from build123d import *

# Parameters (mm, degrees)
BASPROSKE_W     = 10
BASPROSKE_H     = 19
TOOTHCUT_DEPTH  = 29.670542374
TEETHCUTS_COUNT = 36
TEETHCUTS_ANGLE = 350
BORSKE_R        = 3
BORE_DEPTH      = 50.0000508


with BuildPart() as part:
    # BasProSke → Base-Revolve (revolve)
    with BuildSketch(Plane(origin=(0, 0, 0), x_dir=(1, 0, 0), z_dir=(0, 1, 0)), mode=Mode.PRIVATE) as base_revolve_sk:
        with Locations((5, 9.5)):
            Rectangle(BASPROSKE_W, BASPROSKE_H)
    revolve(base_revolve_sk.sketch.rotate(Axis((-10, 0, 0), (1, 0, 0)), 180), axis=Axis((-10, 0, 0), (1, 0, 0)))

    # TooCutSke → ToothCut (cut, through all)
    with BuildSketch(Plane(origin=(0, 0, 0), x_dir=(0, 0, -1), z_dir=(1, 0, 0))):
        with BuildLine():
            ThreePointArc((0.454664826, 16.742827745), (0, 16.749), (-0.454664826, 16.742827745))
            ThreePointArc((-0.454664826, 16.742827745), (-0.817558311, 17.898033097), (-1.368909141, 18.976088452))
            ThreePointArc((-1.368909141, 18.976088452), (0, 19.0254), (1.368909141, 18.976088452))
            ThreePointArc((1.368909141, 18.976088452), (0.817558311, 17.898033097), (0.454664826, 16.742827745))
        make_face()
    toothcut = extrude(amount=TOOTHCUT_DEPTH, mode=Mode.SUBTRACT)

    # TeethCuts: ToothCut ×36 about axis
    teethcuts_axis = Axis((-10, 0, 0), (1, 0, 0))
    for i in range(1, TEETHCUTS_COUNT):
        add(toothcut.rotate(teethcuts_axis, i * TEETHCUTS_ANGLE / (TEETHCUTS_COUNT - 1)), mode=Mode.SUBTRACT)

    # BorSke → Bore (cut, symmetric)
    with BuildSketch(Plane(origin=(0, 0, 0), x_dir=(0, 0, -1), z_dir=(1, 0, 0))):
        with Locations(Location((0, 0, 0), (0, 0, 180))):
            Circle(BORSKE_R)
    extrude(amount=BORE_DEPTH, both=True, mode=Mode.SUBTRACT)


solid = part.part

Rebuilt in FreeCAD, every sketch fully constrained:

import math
import FreeCAD as App
import Part
import Sketcher

V = App.Vector
Q = App.Units.Quantity


def add_polygon(sketch, points):
    """Adds a closed chain of lines whose ends are joined by coincident constraints."""
    first, n = sketch.GeometryCount, len(points)
    for a, b in zip(points, points[1:] + points[:1]):
        sketch.addGeometry(Part.LineSegment(App.Vector(*a, 0), App.Vector(*b, 0)), False)
    for i in range(n):
        sketch.addConstraint(Sketcher.Constraint("Coincident", first + i, 2, first + (i + 1) % n, 1))

doc = App.newDocument("Part")
body = doc.addObject("PartDesign::Body", "Body")

# Sketch on XZ plane
sketch1 = doc.addObject("Sketcher::SketchObject", "Sketch")
body.addObject(sketch1)
sketch1.AttachmentSupport = (doc.XZ_Plane, [""])
sketch1.MapMode = "FlatFace"
add_polygon(sketch1, [(0, -19), (0, 0), (10, 0), (10, -19)])  # lines 0-3
sketch1.addConstraint([
    Sketcher.Constraint("Vertical", 0),
    Sketcher.Constraint("Horizontal", 1),
    Sketcher.Constraint("Vertical", 2),
    Sketcher.Constraint("Horizontal", 3),
    Sketcher.Constraint("Coincident", 0, 2, -1, 1),
    Sketcher.Constraint("DistanceX", 1, 1, 1, 2, Q("10 mm")),
    Sketcher.Constraint("DistanceY", 0, 1, 0, 2, Q("19 mm")),
])
revolution = doc.addObject("PartDesign::Revolution", "Revolution")
body.addObject(revolution)
revolution.Profile = sketch1
revolution.ReferenceAxis = (sketch1, ["H_Axis"])
revolution.Angle = 360

# Sketch on YZ plane
sketch2 = doc.addObject("Sketcher::SketchObject", "Sketch001")
body.addObject(sketch2)
sketch2.AttachmentSupport = (doc.YZ_Plane, [""])
sketch2.MapMode = "FlatFace"
sketch2.addGeometry([
    Part.ArcOfCircle(Part.Circle(V(0, 0, 0), V(0, 0, 1), 16.7), math.radians(-1.56), math.radians(1.56)),
    Part.ArcOfCircle(Part.Circle(V(15.2, -7.5, 0), V(0, 0, 1), 7.2), math.radians(58.09), math.radians(77.38)),
    Part.ArcOfCircle(Part.Circle(V(0, 0, 0), V(0, 0, 1), 19), math.radians(-4.13), math.radians(4.13)),
    Part.ArcOfCircle(Part.Circle(V(15.2, 7.5, 0), V(0, 0, 1), 7.2), math.radians(-77.38), math.radians(-58.09)),
], False)
sketch2.addConstraint([
    Sketcher.Constraint("Coincident", 0, 1, 1, 2),
    Sketcher.Constraint("Coincident", 1, 1, 2, 1),
    Sketcher.Constraint("Coincident", 2, 2, 3, 2),
    Sketcher.Constraint("Coincident", 3, 1, 0, 2),
    Sketcher.Constraint("Coincident", 0, 3, -1, 1),
    Sketcher.Constraint("Coincident", 2, 3, -1, 1),
    Sketcher.Constraint("Equal", 1, 3),
    Sketcher.Constraint("Symmetric", 1, 3, 3, 3, -1),
    Sketcher.Constraint("Radius", 1, Q("7.2 mm")),
    Sketcher.Constraint("Radius", 0, Q("16.749 mm")),
    Sketcher.Constraint("Radius", 2, Q("19.0254 mm")),
    Sketcher.Constraint("DistanceY", 1, 3, -1, 1, Q("7.480829 mm")),
    Sketcher.Constraint("DistanceX", -1, 1, 1, 1, Q("18.976088 mm")),
])
pocket1 = doc.addObject("PartDesign::Pocket", "Pocket")
body.addObject(pocket1)
pocket1.Profile = sketch2
pocket1.Type = "ThroughAll"
pocket1.Reversed = True
doc.recompute()

polarpattern = doc.addObject("PartDesign::PolarPattern", "PolarPattern")
body.addObject(polarpattern)
polarpattern.Originals = [pocket1]
polarpattern.Axis = (doc.X_Axis, [""])
polarpattern.Angle = 360
polarpattern.Occurrences = 36
body.Tip = polarpattern

# Sketch on YZ plane
sketch3 = doc.addObject("Sketcher::SketchObject", "Sketch002")
body.addObject(sketch3)
sketch3.AttachmentSupport = (doc.YZ_Plane, [""])
sketch3.MapMode = "FlatFace"
sketch3.addGeometry(Part.Circle(V(0, 0, 0), V(0, 0, 1), 3), False)
sketch3.addConstraint([
    Sketcher.Constraint("Coincident", 0, 3, -1, 1),
    Sketcher.Constraint("Diameter", 0, Q("6 mm")),
])
pocket2 = doc.addObject("PartDesign::Pocket", "Pocket001")
body.addObject(pocket2)
pocket2.Profile = sketch3
pocket2.Length = 100.000102
pocket2.Midplane = True

doc.recompute()
